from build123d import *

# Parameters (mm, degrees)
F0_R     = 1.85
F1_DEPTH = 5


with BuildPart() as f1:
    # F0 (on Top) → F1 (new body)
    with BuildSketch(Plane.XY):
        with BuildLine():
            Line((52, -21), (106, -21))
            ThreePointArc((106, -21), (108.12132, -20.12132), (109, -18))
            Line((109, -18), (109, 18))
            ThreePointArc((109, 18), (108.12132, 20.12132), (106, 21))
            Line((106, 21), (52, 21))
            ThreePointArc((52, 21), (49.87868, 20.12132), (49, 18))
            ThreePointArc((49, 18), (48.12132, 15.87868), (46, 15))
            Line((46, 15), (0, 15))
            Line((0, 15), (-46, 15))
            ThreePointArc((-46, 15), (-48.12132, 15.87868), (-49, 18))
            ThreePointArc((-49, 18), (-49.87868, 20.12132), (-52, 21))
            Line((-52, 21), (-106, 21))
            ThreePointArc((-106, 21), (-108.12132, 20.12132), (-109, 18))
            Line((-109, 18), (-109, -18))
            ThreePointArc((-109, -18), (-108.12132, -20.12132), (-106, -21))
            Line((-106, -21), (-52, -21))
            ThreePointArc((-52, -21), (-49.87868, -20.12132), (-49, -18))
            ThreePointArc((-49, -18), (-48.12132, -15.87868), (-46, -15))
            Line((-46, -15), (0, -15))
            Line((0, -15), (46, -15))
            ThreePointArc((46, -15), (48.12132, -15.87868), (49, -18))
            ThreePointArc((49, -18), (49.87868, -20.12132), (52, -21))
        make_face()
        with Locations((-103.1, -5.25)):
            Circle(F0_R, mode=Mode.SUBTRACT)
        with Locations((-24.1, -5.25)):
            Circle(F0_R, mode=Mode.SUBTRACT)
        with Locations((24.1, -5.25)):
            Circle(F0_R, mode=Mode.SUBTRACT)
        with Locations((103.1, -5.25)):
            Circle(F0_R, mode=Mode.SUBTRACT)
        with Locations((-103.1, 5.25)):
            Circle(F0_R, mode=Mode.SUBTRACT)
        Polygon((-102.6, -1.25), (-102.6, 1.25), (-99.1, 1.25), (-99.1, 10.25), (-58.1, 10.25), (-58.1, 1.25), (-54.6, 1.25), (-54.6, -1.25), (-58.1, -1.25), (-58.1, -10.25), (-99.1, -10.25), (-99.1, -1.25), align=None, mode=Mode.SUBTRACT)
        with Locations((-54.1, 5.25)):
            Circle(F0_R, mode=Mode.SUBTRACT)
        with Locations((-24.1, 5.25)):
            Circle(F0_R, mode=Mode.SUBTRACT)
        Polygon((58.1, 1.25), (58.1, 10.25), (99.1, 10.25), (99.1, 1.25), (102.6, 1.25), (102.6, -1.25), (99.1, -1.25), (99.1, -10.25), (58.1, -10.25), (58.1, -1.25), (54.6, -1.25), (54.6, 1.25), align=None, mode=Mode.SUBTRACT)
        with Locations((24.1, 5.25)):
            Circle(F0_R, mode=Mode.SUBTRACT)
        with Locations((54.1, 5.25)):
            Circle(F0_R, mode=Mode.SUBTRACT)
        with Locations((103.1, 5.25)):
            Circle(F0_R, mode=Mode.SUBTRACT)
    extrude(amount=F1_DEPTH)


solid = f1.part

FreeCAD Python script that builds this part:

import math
import FreeCAD as App
import Part
import Sketcher

V = App.Vector
Q = App.Units.Quantity


def add_polygon(sketch, points):
    """Adds a closed chain of lines whose ends are joined by coincident constraints."""
    first, n = sketch.GeometryCount, len(points)
    for a, b in zip(points, points[1:] + points[:1]):
        sketch.addGeometry(Part.LineSegment(App.Vector(*a, 0), App.Vector(*b, 0)), False)
    for i in range(n):
        sketch.addConstraint(Sketcher.Constraint("Coincident", first + i, 2, first + (i + 1) % n, 1))

doc = App.newDocument("Part")
body = doc.addObject("PartDesign::Body", "Body")

# Sketch on XY plane
sketch1 = doc.addObject("Sketcher::SketchObject", "Sketch")
body.addObject(sketch1)
sketch1.AttachmentSupport = (doc.XY_Plane, [""])
sketch1.MapMode = "FlatFace"
sketch1.addGeometry(Part.LineSegment(V(52, -21, 0), V(106, -21, 0)), False)  # 0
sketch1.addGeometry(Part.ArcOfCircle(Part.Circle(V(106, -18, 0), V(0, 0, 1), 3), math.radians(-90), math.radians(0)), False)  # 1
sketch1.addGeometry(Part.LineSegment(V(109, -18, 0), V(109, 18, 0)), False)  # 2
sketch1.addGeometry(Part.ArcOfCircle(Part.Circle(V(106, 18, 0), V(0, 0, 1), 3), math.radians(0), math.radians(90)), False)  # 3
sketch1.addGeometry(Part.LineSegment(V(106, 21, 0), V(52, 21, 0)), False)  # 4
sketch1.addGeometry(Part.ArcOfCircle(Part.Circle(V(52, 18, 0), V(0, 0, 1), 3), math.radians(90), math.radians(180)), False)  # 5
sketch1.addGeometry(Part.ArcOfCircle(Part.Circle(V(46, 18, 0), V(0, 0, 1), 3), math.radians(-90), math.radians(0)), False)  # 6
sketch1.addGeometry(Part.LineSegment(V(46, 15, 0), V(-46, 15, 0)), False)  # 7
sketch1.addGeometry(Part.ArcOfCircle(Part.Circle(V(-46, 18, 0), V(0, 0, 1), 3), math.radians(-180), math.radians(-90)), False)  # 8
sketch1.addGeometry(Part.ArcOfCircle(Part.Circle(V(-52, 18, 0), V(0, 0, 1), 3), math.radians(0), math.radians(90)), False)  # 9
sketch1.addGeometry(Part.LineSegment(V(-52, 21, 0), V(-106, 21, 0)), False)  # 10
sketch1.addGeometry(Part.ArcOfCircle(Part.Circle(V(-106, 18, 0), V(0, 0, 1), 3), math.radians(90), math.radians(180)), False)  # 11
sketch1.addGeometry(Part.LineSegment(V(-109, 18, 0), V(-109, -18, 0)), False)  # 12
sketch1.addGeometry(Part.ArcOfCircle(Part.Circle(V(-106, -18, 0), V(0, 0, 1), 3), math.radians(-180), math.radians(-90)), False)  # 13
sketch1.addGeometry(Part.LineSegment(V(-106, -21, 0), V(-52, -21, 0)), False)  # 14
sketch1.addGeometry(Part.ArcOfCircle(Part.Circle(V(-52, -18, 0), V(0, 0, 1), 3), math.radians(-90), math.radians(0)), False)  # 15
sketch1.addGeometry(Part.ArcOfCircle(Part.Circle(V(-46, -18, 0), V(0, 0, 1), 3), math.radians(90), math.radians(180)), False)  # 16
sketch1.addGeometry(Part.LineSegment(V(-46, -15, 0), V(46, -15, 0)), False)  # 17
sketch1.addGeometry(Part.ArcOfCircle(Part.Circle(V(46, -18, 0), V(0, 0, 1), 3), math.radians(0), math.radians(90)), False)  # 18
sketch1.addGeometry(Part.ArcOfCircle(Part.Circle(V(52, -18, 0), V(0, 0, 1), 3), math.radians(-180), math.radians(-90)), False)  # 19
sketch1.addGeometry(Part.Circle(V(-103.1, -5.2, 0), V(0, 0, 1), 1.9), False)  # 20
sketch1.addGeometry(Part.Circle(V(-24.1, -5.2, 0), V(0, 0, 1), 1.9), False)  # 21
sketch1.addGeometry(Part.Circle(V(24.1, -5.2, 0), V(0, 0, 1), 1.9), False)  # 22
sketch1.addGeometry(Part.Circle(V(103.1, -5.2, 0), V(0, 0, 1), 1.9), False)  # 23
add_polygon(sketch1, [(-99.1, -1.2), (-102.6, -1.2), (-102.6, 1.2), (-99.1, 1.2), (-99.1, 10.2), (-58.1, 10.2), (-58.1, 1.2), (-54.6, 1.2), (-54.6, -1.2), (-58.1, -1.2), (-58.1, -10.2), (-99.1, -10.2)])  # lines 24-35
sketch1.addGeometry(Part.Circle(V(-103.1, 5.2, 0), V(0, 0, 1), 1.9), False)  # 36
sketch1.addGeometry(Part.Circle(V(-54.1, 5.2, 0), V(0, 0, 1), 1.9), False)  # 37
sketch1.addGeometry(Part.Circle(V(-24.1, 5.2, 0), V(0, 0, 1), 1.9), False)  # 38
add_polygon(sketch1, [(54.6, 1.2), (58.1, 1.2), (58.1, 10.2), (99.1, 10.2), (99.1, 1.2), (102.6, 1.2), (102.6, -1.2), (99.1, -1.2), (99.1, -10.2), (58.1, -10.2), (58.1, -1.2), (54.6, -1.2)])  # lines 39-50
sketch1.addGeometry(Part.Circle(V(24.1, 5.2, 0), V(0, 0, 1), 1.9), False)  # 51
sketch1.addGeometry(Part.Circle(V(54.1, 5.2, 0), V(0, 0, 1), 1.9), False)  # 52
sketch1.addGeometry(Part.Circle(V(103.1, 5.2, 0), V(0, 0, 1), 1.9), False)  # 53
sketch1.addConstraint([
    Sketcher.Constraint("Tangent", 0, 2, 1, 1),
    Sketcher.Constraint("Tangent", 1, 2, 2, 1),
    Sketcher.Constraint("Tangent", 2, 2, 3, 1),
    Sketcher.Constraint("Tangent", 3, 2, 4, 1),
    Sketcher.Constraint("Tangent", 4, 2, 5, 1),
    Sketcher.Constraint("Tangent", 5, 2, 6, 2),
    Sketcher.Constraint("Tangent", 6, 1, 7, 1),
    Sketcher.Constraint("Tangent", 7, 2, 8, 2),
    Sketcher.Constraint("Tangent", 8, 1, 9, 1),
    Sketcher.Constraint("Tangent", 9, 2, 10, 1),
    Sketcher.Constraint("Tangent", 10, 2, 11, 1),
    Sketcher.Constraint("Tangent", 11, 2, 12, 1),
    Sketcher.Constraint("Tangent", 12, 2, 13, 1),
    Sketcher.Constraint("Tangent", 13, 2, 14, 1),
    Sketcher.Constraint("Tangent", 14, 2, 15, 1),
    Sketcher.Constraint("Tangent", 15, 2, 16, 2),
    Sketcher.Constraint("Tangent", 16, 1, 17, 1),
    Sketcher.Constraint("Tangent", 17, 2, 18, 2),
    Sketcher.Constraint("Tangent", 18, 1, 19, 1),
    Sketcher.Constraint("Tangent", 19, 2, 0, 1),
    Sketcher.Constraint("Horizontal", 0),
    Sketcher.Constraint("Vertical", 2),
    Sketcher.Constraint("Horizontal", 4),
    Sketcher.Constraint("Horizontal", 7),
    Sketcher.Constraint("Horizontal", 10),
    Sketcher.Constraint("Vertical", 12),
    Sketcher.Constraint("Horizontal", 14),
    Sketcher.Constraint("Horizontal", 17),
    Sketcher.Constraint("Horizontal", 24),
    Sketcher.Constraint("Vertical", 25),
    Sketcher.Constraint("Horizontal", 26),
    Sketcher.Constraint("Vertical", 27),
    Sketcher.Constraint("Horizontal", 28),
    Sketcher.Constraint("Vertical", 29),
    Sketcher.Constraint("Horizontal", 30),
    Sketcher.Constraint("Vertical", 31),
    Sketcher.Constraint("Horizontal", 32),
    Sketcher.Constraint("Vertical", 33),
    Sketcher.Constraint("Horizontal", 34),
    Sketcher.Constraint("Vertical", 35),
    Sketcher.Constraint("Horizontal", 39),
    Sketcher.Constraint("Vertical", 40),
    Sketcher.Constraint("Horizontal", 41),
    Sketcher.Constraint("Vertical", 42),
    Sketcher.Constraint("Horizontal", 43),
    Sketcher.Constraint("Vertical", 44),
    Sketcher.Constraint("Horizontal", 45),
    Sketcher.Constraint("Vertical", 46),
    Sketcher.Constraint("Horizontal", 47),
    Sketcher.Constraint("Vertical", 48),
    Sketcher.Constraint("Horizontal", 49),
    Sketcher.Constraint("Vertical", 50),
    Sketcher.Constraint("Equal", 1, 3),
    Sketcher.Constraint("Equal", 3, 5),
    Sketcher.Constraint("Equal", 5, 6),
    Sketcher.Constraint("Equal", 6, 8),
    Sketcher.Constraint("Equal", 8, 9),
    Sketcher.Constraint("Equal", 9, 11),
    Sketcher.Constraint("Equal", 11, 13),
    Sketcher.Constraint("Equal", 13, 15),
    Sketcher.Constraint("Equal", 15, 16),
    Sketcher.Constraint("Equal", 16, 18),
    Sketcher.Constraint("Equal", 18, 19),
    Sketcher.Constraint("Equal", 20, 21),
    Sketcher.Constraint("Equal", 21, 22),
    Sketcher.Constraint("Equal", 22, 23),
    Sketcher.Constraint("Equal", 23, 36),
    Sketcher.Constraint("Equal", 36, 37),
    Sketcher.Constraint("Equal", 37, 38),
    Sketcher.Constraint("Equal", 38, 51),
    Sketcher.Constraint("Equal", 51, 52),
    Sketcher.Constraint("Equal", 52, 53),
    Sketcher.Constraint("Symmetric", 1, 3, 11, 3, -1, 1),
    Sketcher.Constraint("Symmetric", 5, 3, 15, 3, -1, 1),
    Sketcher.Constraint("Symmetric", 8, 3, 18, 3, -1, 1),
    Sketcher.Constraint("Symmetric", 23, 3, 36, 3, -1, 1),
    Sketcher.Constraint("Symmetric", 22, 3, 38, 3, -1, 1),
    Sketcher.Constraint("Symmetric", 21, 3, 51, 3, -1, 1),
    Sketcher.Constraint("Symmetric", 20, 3, 53, 3, -1, 1),
    Sketcher.Constraint("Symmetric", 32, 2, 39, 2, -1, 1),
    Sketcher.Constraint("Symmetric", 34, 2, 41, 2, -1, 1),
    Sketcher.Constraint("Symmetric", 24, 2, 43, 2, -1, 1),
    Sketcher.Constraint("Symmetric", 26, 2, 45, 2, -1, 1),
    Sketcher.Constraint("Symmetric", 28, 2, 47, 2, -1, 1),
    Sketcher.Constraint("Symmetric", 30, 2, 49, 2, -1, 1),
    Sketcher.Constraint("Symmetric", 5, 3, 9, 3, -2),
    Sketcher.Constraint("Symmetric", 21, 3, 22, 3, -2),
    Sketcher.Constraint("Symmetric", 20, 3, 23, 3, -2),
    Sketcher.Constraint("Symmetric", 37, 3, 52, 3, -2),
    Sketcher.Constraint("Symmetric", 29, 2, 39, 2, -2),
    Sketcher.Constraint("Symmetric", 27, 2, 41, 2, -2),
    Sketcher.Constraint("Horizontal", 20, 3, 21, 3),
    Sketcher.Constraint("Horizontal", 36, 3, 37, 3),
    Sketcher.Constraint("Horizontal", 2, 2, 5, 2),
    Sketcher.Constraint("Horizontal", 26, 2, 29, 2),
    Sketcher.Constraint("Horizontal", 24, 2, 31, 2),
    Sketcher.Constraint("Equal", 26, 30),
    Sketcher.Constraint("Radius", 1, Q("3.000001 mm")),
    Sketcher.Constraint("Diameter", 20, Q("3.7 mm")),
    Sketcher.Constraint("DistanceX", 0, 1, 0, 2, Q("54 mm")),
    Sketcher.Constraint("DistanceX", 7, 2, 7, 1, Q("92 mm")),
    Sketcher.Constraint("DistanceX", 28, 1, 28, 2, Q("41 mm")),
    Sketcher.Constraint("DistanceY", 2, 1, 2, 2, Q("36 mm")),
    Sketcher.Constraint("DistanceY", 27, 1, 27, 2, Q("9 mm")),
    Sketcher.Constraint("DistanceX", 24, 2, 24, 1, Q("3.5 mm")),
    Sketcher.Constraint("DistanceY", 25, 1, 25, 2, Q("2.5 mm")),
    Sketcher.Constraint("DistanceX", 20, 3, -1, 1, Q("103.1 mm")),
    Sketcher.Constraint("DistanceX", 21, 3, -1, 1, Q("24.1 mm")),
    Sketcher.Constraint("DistanceX", 37, 3, -1, 1, Q("54.1 mm")),
    Sketcher.Constraint("DistanceX", 24, 2, -1, 1, Q("102.6 mm")),
    Sketcher.Constraint("DistanceY", 20, 3, -1, 1, Q("5.25 mm")),
])
pad1 = doc.addObject("PartDesign::Pad", "Pad")
body.addObject(pad1)
pad1.Profile = sketch1
pad1.Length = 5

doc.recompute()
